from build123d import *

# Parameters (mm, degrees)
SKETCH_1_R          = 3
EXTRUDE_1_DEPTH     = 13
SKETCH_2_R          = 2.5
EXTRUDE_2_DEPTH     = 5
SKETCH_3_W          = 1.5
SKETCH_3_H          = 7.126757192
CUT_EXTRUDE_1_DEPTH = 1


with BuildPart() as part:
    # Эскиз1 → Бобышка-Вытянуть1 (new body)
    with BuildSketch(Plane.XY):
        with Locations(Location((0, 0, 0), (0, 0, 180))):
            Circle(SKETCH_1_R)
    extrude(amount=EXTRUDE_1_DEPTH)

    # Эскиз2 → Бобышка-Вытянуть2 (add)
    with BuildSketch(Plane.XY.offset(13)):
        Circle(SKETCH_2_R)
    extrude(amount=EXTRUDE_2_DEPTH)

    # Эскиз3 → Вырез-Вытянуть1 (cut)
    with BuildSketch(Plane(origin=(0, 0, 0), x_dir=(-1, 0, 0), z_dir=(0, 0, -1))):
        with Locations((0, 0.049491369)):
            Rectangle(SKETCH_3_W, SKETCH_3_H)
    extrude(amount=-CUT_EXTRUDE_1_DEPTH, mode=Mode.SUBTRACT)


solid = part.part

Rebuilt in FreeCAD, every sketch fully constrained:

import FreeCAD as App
import Part
import Sketcher
Q = App.Units.Quantity

doc = App.newDocument("Part")
body = doc.addObject("PartDesign::Body", "Body")

# Sketch on XY plane
sketch1 = doc.addObject("Sketcher::SketchObject", "Sketch")
body.addObject(sketch1)
sketch1.AttachmentSupport = (doc.XY_Plane, [""])
sketch1.MapMode = "FlatFace"
sketch1.addGeometry(Part.Circle(App.Vector(0, 0, 0), App.Vector(0, 0, 1), 3), False)
sketch1.addConstraint([
    Sketcher.Constraint("Coincident", 0, 3, -1, 1),
    Sketcher.Constraint("Diameter", 0, Q("6 mm")),
])
pad1 = doc.addObject("PartDesign::Pad", "Pad")
body.addObject(pad1)
pad1.Profile = sketch1
pad1.Length = 13

# Sketch on XY plane
sketch2 = doc.addObject("Sketcher::SketchObject", "Sketch001")
body.addObject(sketch2)
sketch2.AttachmentSupport = (doc.XY_Plane, [""])
sketch2.MapMode = "FlatFace"
sketch2.AttachmentOffset = App.Placement(App.Vector(0, 0, 13), App.Rotation())
sketch2.addGeometry(Part.Circle(App.Vector(0, 0, 0), App.Vector(0, 0, 1), 2.5), False)
sketch2.addConstraint([
    Sketcher.Constraint("Coincident", 0, 3, -1, 1),
    Sketcher.Constraint("Diameter", 0, Q("5 mm")),
])
pad2 = doc.addObject("PartDesign::Pad", "Pad001")
body.addObject(pad2)
pad2.Profile = sketch2
pad2.Length = 5

# Sketch on XY plane
sketch3 = doc.addObject("Sketcher::SketchObject", "Sketch002")
body.addObject(sketch3)
sketch3.AttachmentSupport = (doc.XY_Plane, [""])
sketch3.MapMode = "FlatFace"
sketch3.addGeometry([
    Part.LineSegment(App.Vector(0.75, 3.61287, 0), App.Vector(0.75, -3.513887, 0)),
    Part.LineSegment(App.Vector(0.75, -3.513887, 0), App.Vector(-0.75, -3.513887, 0)),
    Part.LineSegment(App.Vector(-0.75, -3.513887, 0), App.Vector(-0.75, 3.61287, 0)),
    Part.LineSegment(App.Vector(-0.75, 3.61287, 0), App.Vector(0.75, 3.61287, 0)),
], False)
sketch3.addConstraint([
    Sketcher.Constraint("Coincident", 0, 2, 1, 1),
    Sketcher.Constraint("Coincident", 1, 2, 2, 1),
    Sketcher.Constraint("Coincident", 2, 2, 3, 1),
    Sketcher.Constraint("Coincident", 3, 2, 0, 1),
    Sketcher.Constraint("Vertical", 0),
    Sketcher.Constraint("Horizontal", 1),
    Sketcher.Constraint("Vertical", 2),
    Sketcher.Constraint("Horizontal", 3),
    Sketcher.Constraint("DistanceX", 1, 2, 1, 1, Q("1.5 mm")),
    Sketcher.Constraint("DistanceX", -1, 1, 0, 2, Q("0.75 mm")),
    Sketcher.Constraint("DistanceY", 0, 2, 0, 1, Q("7.126757 mm")),
    Sketcher.Constraint("DistanceY", -1, 1, 2, 2, Q("3.61287 mm")),
])
pocket1 = doc.addObject("PartDesign::Pocket", "Pocket")
body.addObject(pocket1)
pocket1.Profile = sketch3
pocket1.Length = 1
pocket1.Reversed = True

doc.recompute()
